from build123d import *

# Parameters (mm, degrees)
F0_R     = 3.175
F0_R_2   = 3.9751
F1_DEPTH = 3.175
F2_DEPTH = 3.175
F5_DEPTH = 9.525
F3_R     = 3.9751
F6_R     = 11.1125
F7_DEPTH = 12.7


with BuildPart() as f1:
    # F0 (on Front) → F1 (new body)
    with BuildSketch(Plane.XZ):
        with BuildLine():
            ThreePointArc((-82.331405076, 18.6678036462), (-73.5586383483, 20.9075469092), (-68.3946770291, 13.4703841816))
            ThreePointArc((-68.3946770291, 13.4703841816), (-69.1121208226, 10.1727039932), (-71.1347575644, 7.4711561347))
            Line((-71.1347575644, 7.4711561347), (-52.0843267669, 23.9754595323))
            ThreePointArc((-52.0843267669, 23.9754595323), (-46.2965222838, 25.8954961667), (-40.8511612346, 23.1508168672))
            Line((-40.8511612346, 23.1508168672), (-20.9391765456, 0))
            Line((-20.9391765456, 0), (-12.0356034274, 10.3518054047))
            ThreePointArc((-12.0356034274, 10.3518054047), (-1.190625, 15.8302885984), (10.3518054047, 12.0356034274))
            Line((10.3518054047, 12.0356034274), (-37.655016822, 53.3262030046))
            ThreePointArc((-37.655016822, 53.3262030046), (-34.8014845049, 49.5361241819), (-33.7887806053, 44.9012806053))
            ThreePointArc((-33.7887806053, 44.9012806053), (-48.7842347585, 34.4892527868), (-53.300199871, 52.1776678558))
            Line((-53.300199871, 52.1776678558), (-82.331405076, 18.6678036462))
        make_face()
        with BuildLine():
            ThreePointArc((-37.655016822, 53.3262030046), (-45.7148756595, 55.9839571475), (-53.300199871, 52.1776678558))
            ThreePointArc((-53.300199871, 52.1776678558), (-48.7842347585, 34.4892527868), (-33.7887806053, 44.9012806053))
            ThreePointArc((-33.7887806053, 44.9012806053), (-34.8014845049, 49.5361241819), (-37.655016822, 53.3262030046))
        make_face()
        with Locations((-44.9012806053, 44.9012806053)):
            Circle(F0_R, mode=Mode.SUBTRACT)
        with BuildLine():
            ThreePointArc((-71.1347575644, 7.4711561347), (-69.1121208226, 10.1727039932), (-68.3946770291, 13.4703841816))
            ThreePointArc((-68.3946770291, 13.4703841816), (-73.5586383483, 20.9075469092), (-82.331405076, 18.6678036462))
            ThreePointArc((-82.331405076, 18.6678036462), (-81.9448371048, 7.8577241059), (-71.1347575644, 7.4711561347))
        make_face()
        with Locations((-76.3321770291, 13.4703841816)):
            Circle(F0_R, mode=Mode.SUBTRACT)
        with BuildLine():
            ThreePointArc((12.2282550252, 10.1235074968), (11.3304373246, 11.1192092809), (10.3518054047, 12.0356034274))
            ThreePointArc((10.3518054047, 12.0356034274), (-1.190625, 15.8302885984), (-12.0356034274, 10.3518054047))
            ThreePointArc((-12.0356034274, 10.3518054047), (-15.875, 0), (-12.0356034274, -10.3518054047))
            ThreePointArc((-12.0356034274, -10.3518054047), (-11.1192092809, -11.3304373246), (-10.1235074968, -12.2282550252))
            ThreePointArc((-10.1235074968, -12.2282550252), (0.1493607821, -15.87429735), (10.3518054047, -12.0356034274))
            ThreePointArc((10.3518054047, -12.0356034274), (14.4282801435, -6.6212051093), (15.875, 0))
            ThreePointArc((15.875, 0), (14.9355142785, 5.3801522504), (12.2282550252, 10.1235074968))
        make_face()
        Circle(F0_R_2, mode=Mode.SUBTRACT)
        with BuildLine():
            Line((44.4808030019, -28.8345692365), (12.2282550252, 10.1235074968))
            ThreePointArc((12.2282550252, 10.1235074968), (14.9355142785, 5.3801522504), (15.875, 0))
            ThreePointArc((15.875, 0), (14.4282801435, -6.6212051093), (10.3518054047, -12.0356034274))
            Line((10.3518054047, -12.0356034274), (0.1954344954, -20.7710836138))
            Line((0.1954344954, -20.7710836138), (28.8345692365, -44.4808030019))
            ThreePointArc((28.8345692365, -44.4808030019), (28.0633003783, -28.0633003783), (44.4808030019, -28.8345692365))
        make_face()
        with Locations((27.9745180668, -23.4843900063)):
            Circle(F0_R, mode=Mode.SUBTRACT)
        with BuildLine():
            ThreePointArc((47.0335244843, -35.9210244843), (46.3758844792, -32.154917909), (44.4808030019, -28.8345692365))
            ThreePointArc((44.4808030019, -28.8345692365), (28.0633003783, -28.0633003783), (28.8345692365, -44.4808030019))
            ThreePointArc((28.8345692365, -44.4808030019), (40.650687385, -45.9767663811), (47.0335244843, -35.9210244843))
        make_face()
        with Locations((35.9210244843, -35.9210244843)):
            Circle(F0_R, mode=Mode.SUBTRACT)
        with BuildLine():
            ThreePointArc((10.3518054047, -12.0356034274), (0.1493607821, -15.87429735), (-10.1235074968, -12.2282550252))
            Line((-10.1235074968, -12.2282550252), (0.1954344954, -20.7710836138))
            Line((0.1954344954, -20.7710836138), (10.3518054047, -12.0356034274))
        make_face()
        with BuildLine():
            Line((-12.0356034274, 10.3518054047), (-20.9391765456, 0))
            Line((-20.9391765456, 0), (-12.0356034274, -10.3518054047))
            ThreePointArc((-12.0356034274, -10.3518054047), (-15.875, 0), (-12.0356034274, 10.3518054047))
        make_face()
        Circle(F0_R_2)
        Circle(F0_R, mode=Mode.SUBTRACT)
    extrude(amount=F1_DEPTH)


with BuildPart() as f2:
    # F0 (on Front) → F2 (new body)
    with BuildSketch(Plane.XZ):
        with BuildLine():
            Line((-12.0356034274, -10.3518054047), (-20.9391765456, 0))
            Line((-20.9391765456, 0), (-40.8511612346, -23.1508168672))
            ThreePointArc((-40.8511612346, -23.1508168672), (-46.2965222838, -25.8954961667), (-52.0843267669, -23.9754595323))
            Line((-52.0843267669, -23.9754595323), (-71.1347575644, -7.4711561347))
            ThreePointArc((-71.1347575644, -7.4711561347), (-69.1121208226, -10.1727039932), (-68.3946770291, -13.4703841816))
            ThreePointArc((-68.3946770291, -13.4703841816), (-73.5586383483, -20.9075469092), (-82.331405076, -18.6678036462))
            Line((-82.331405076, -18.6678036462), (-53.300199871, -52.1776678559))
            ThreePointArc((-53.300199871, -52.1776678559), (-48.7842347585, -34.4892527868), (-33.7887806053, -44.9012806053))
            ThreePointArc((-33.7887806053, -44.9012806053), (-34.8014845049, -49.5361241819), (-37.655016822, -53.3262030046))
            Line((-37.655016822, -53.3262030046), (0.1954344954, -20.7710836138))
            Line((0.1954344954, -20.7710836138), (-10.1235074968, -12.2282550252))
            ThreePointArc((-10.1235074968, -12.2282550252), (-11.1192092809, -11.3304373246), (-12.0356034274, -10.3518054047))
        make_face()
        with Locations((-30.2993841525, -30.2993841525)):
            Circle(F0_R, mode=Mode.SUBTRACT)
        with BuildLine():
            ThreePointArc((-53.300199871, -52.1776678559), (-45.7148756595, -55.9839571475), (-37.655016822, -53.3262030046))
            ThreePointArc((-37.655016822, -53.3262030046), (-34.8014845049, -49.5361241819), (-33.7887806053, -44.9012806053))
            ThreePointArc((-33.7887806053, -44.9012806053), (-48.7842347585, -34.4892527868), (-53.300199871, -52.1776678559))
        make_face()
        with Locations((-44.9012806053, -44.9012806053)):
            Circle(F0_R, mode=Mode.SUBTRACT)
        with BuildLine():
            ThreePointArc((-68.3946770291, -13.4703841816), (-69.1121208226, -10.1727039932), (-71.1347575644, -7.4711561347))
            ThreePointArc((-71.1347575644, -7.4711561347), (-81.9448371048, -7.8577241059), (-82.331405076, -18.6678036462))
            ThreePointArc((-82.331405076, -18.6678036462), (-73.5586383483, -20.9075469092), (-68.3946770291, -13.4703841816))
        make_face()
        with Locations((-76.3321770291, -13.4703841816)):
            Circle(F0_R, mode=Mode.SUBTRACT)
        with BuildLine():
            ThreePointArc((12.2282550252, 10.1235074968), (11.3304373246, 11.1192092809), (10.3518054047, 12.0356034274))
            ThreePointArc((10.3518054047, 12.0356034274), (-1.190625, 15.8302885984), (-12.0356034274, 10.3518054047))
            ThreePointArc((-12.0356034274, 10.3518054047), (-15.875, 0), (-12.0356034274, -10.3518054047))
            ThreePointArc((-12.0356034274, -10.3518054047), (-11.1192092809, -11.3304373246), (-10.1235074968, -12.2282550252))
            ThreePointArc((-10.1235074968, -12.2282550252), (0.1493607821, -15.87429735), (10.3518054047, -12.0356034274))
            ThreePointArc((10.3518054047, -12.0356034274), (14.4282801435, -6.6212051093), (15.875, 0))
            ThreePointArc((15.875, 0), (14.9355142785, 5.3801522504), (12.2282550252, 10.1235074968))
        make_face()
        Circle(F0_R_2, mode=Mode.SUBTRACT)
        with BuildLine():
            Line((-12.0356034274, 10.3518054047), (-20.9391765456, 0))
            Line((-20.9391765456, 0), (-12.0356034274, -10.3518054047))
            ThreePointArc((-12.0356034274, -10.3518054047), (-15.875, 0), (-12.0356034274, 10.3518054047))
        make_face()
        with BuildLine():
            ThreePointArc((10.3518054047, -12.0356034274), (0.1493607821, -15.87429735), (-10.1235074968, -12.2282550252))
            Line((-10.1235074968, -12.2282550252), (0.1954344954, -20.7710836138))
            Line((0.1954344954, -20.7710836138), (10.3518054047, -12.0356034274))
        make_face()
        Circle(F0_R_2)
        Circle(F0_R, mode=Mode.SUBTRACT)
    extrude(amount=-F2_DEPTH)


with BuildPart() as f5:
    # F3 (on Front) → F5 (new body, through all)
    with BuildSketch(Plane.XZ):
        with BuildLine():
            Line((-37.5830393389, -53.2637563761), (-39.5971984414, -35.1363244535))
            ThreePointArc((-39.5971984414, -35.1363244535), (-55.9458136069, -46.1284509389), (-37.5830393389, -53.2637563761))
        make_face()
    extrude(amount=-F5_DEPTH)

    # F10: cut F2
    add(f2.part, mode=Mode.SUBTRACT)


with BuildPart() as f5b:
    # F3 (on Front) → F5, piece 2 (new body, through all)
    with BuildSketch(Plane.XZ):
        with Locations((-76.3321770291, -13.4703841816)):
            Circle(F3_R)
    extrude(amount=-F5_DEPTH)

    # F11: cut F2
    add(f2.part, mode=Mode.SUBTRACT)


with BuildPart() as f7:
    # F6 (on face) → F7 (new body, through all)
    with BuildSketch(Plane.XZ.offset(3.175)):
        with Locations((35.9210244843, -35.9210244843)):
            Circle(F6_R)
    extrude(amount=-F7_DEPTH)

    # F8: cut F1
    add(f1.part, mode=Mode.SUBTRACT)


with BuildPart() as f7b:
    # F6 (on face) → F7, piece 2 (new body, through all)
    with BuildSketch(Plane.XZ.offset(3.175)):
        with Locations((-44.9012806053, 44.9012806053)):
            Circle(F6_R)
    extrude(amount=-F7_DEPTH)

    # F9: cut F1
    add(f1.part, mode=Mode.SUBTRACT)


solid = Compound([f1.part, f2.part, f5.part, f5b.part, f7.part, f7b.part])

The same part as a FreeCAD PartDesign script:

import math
import FreeCAD as App
import Part
import Sketcher
from FreeCAD import Vector
Q = App.Units.Quantity

doc = App.newDocument("Part")
params = doc.addObject("Spreadsheet::Sheet", "Params")
for row, (alias, value) in enumerate([
    ("sketch1_diameter", "0.25 in"),
    ("sketch1_radius", "0.3125 in"),
    ("sketch1_radius2", "0.313 in"),
    ("sketch1_radius3", "0.625 in"),
    ("sketch1_radius4", "0.4375 in"),
    ("pad1_length", "0.125 in"),
    ("sketch2_diameter", "0.25 in"),
    ("sketch2_diameter2", "0.25 in"),
    ("sketch2_diameter3", "0.25 in"),
    ("sketch2_diameter4", "0.25 in"),
    ("sketch2_radius", "0.313 in"),
    ("pad2_length", "0.125 in"),
    ("sketch3_radius", "0.4375 in"),
    ("pad3_length", "0.375 in"),
    ("sketch4_diameter", "0.313 in"),
    ("pad4_length", "0.375 in"),
    ("sketch5_diameter", "0.875 in"),
    ("pad5_length", "0.5 in"),
    ("sketch6_diameter", "0.875 in"),
    ("pad6_length", "0.5 in"),
], start=1):
    params.set(f"A{row}", alias)
    params.set(f"B{row}", "=" + value)
    params.setAlias(f"B{row}", alias)

body = doc.addObject("PartDesign::Body", "Body")

sketch1 = body.newObject("Sketcher::SketchObject", "Sketch")
sketch1.AttachmentSupport = (doc.getObject("XZ_Plane"), [""])
sketch1.MapMode = "FlatFace"
sketch1.addGeometry([
    Part.LineSegment(Vector(-53.3, 52.2, 0), Vector(-82.3, 18.7, 0)),
    Part.ArcOfCircle(Part.Circle(Vector(-76.3, 13.5, 0), Vector(0, 0, 1), 7.9), math.radians(139), math.radians(311)),
    Part.LineSegment(Vector(-71.1, 7.5, 0), Vector(-52.1, 24, 0)),
    Part.ArcOfCircle(Part.Circle(Vector(-46.9, 18, 0), Vector(0, 0, 1), 8), math.radians(41), math.radians(131)),
    Part.LineSegment(Vector(-40.9, 23.2, 0), Vector(-20.9, 0, 0)),
    Part.LineSegment(Vector(-20.9, 0, 0), Vector(-12, -10.4, 0)),
    Part.ArcOfCircle(Part.Circle(Vector(0, 0, 0), Vector(0, 0, 1), 15.9), math.radians(-139.3), math.radians(-129.62)),
    Part.LineSegment(Vector(-10.1, -12.2, 0), Vector(0.2, -20.8, 0)),
    Part.LineSegment(Vector(0.2, -20.8, 0), Vector(28.8, -44.5, 0)),
    Part.ArcOfCircle(Part.Circle(Vector(35.9, -35.9, 0), Vector(0, 0, 1), 11.1), math.radians(-130), math.radians(0)),
    Part.ArcOfCircle(Part.Circle(Vector(35.9, -35.9, 0), Vector(0, 0, 1), 11.1), math.radians(0), math.radians(40)),
    Part.LineSegment(Vector(44.5, -28.8, 0), Vector(12.2, 10.1, 0)),
    Part.ArcOfCircle(Part.Circle(Vector(0, 0, 0), Vector(0, 0, 1), 15.9), math.radians(39.62), math.radians(49.3)),
    Part.LineSegment(Vector(10.4, 12, 0), Vector(-37.7, 53.3, 0)),
    Part.ArcOfCircle(Part.Circle(Vector(-44.9, 44.9, 0), Vector(0, 0, 1), 11.1), math.radians(49), math.radians(139)),
    Part.Circle(Vector(35.9, -35.9, 0), Vector(0, 0, 1), 3.2),
    Part.Circle(Vector(28, -23.5, 0), Vector(0, 0, 1), 3.2),
    Part.Circle(Vector(0, 0, 0), Vector(0, 0, 1), 3.2),
    Part.Circle(Vector(-76.3, 13.5, 0), Vector(0, 0, 1), 3.2),
    Part.Circle(Vector(-44.9, 44.9, 0), Vector(0, 0, 1), 3.2),
], False)
sketch1.addConstraint([
    Sketcher.Constraint("Tangent", 0, 2, 1, 1),
    Sketcher.Constraint("Tangent", 1, 2, 2, 1),
    Sketcher.Constraint("Tangent", 2, 2, 3, 2),
    Sketcher.Constraint("Tangent", 3, 1, 4, 1),
    Sketcher.Constraint("Coincident", 4, 2, 5, 1),
    Sketcher.Constraint("Tangent", 5, 2, 6, 1),
    Sketcher.Constraint("Tangent", 6, 2, 7, 1),
    Sketcher.Constraint("Coincident", 7, 2, 8, 1),
    Sketcher.Constraint("Tangent", 8, 2, 9, 1),
    Sketcher.Constraint("Tangent", 9, 2, 10, 1),
    Sketcher.Constraint("Tangent", 10, 2, 11, 1),
    Sketcher.Constraint("Tangent", 11, 2, 12, 1),
    Sketcher.Constraint("Tangent", 12, 2, 13, 1),
    Sketcher.Constraint("Tangent", 13, 2, 14, 1),
    Sketcher.Constraint("Tangent", 14, 2, 0, 1),
    Sketcher.Constraint("Coincident", 6, 3, -1, 1),
    Sketcher.Constraint("Coincident", 12, 3, -1, 1),
    Sketcher.Constraint("Coincident", 17, 3, -1, 1),
    Sketcher.Constraint("Coincident", 15, 3, 9, 3),
    Sketcher.Constraint("Coincident", 18, 3, 1, 3),
    Sketcher.Constraint("Coincident", 19, 3, 14, 3),
    Sketcher.Constraint("Equal", 9, 10),
    Sketcher.Constraint("Equal", 6, 12),
    Sketcher.Constraint("Equal", 10, 14),
    Sketcher.Constraint("Equal", 15, 16),
    Sketcher.Constraint("Equal", 16, 17),
    Sketcher.Constraint("Equal", 17, 18),
    Sketcher.Constraint("Equal", 18, 19),
    Sketcher.Constraint("PointOnObject", 4, 2, -1),
    Sketcher.Constraint("Parallel", 4, 5),
    Sketcher.Constraint("Parallel", 7, 8),
    Sketcher.Constraint("Horizontal", 15, 3, 9, 2),
    Sketcher.Constraint("Diameter", 15, Q("0.25 in")),
    Sketcher.Constraint("Radius", 1, Q("0.3125 in")),
    Sketcher.Constraint("Radius", 3, Q("0.313 in")),
    Sketcher.Constraint("Radius", 6, Q("0.625 in")),
    Sketcher.Constraint("Radius", 9, Q("0.4375 in")),
    Sketcher.Constraint("DistanceX", 14, 2, -1, 1, 53.3002),
    Sketcher.Constraint("DistanceX", 1, 3, 9, 3, 112.253202),
    Sketcher.Constraint("Distance", 8, 37.179979),
    Sketcher.Constraint("DistanceX", 3, 3, -1, 1, 46.878591),
    Sketcher.Constraint("DistanceX", 14, 3, -1, 1, 44.901281),
    Sketcher.Constraint("DistanceY", -1, 1, 14, 3, 44.901281),
    Sketcher.Constraint("DistanceX", -1, 1, 16, 3, 27.974518),
    Sketcher.Constraint("DistanceY", 16, 3, -1, 1, 23.48439),
    Sketcher.Constraint("DistanceY", -1, 1, 2, 2, 23.97546),
    Sketcher.Constraint("DistanceX", -1, 1, 8, 2, 28.834569),
    Sketcher.Constraint("DistanceY", 10, 2, -1, 1, 28.834569),
])
sketch1.setExpression("Constraints[32]", "Params.sketch1_diameter")
sketch1.setExpression("Constraints[33]", "Params.sketch1_radius")
sketch1.setExpression("Constraints[34]", "Params.sketch1_radius2")
sketch1.setExpression("Constraints[35]", "Params.sketch1_radius3")
sketch1.setExpression("Constraints[36]", "Params.sketch1_radius4")
pad1 = body.newObject("PartDesign::Pad", "Pad")
pad1.Profile = sketch1
pad1.setExpression("Length", "Params.pad1_length")
body2 = doc.addObject("PartDesign::Body", "Body001")

sketch2 = body2.newObject("Sketcher::SketchObject", "Sketch001")
sketch2.AttachmentSupport = (doc.getObject("XZ_Plane001"), [""])
sketch2.MapMode = "FlatFace"
sketch2.addGeometry([
    Part.LineSegment(Vector(-20.939177, 0, 0), Vector(-40.851161, -23.150817, 0)),
    Part.ArcOfCircle(Part.Circle(Vector(-46.878591, -17.966633, 0), Vector(0, 0, 1), 7.9502), math.radians(-130.903956), math.radians(-40.698778)),
    Part.LineSegment(Vector(-52.084327, -23.97546, 0), Vector(-71.134758, -7.471156, 0)),
    Part.ArcOfCircle(Part.Circle(Vector(-76.332177, -13.470384, 0), Vector(0, 0, 1), 7.9375), math.radians(49.096044), math.radians(220.903956)),
    Part.LineSegment(Vector(-82.331405, -18.667804, 0), Vector(-53.3002, -52.177668, 0)),
    Part.ArcOfCircle(Part.Circle(Vector(-44.901281, -44.901281, 0), Vector(0, 0, 1), 11.1125), math.radians(-139.096044), math.radians(-49.301222)),
    Part.LineSegment(Vector(-37.655017, -53.326203, 0), Vector(10.351805, -12.035603, 0)),
    Part.ArcOfCircle(Part.Circle(Vector(0, 0, 0), Vector(0, 0, 1), 15.875), math.radians(-49.301222), math.radians(0)),
    Part.ArcOfCircle(Part.Circle(Vector(0, 0, 0), Vector(0, 0, 1), 15.875), math.radians(0), math.radians(39.620621)),
    Part.ArcOfCircle(Part.Circle(Vector(0, 0, 0), Vector(0, 0, 1), 15.875), math.radians(39.620621), math.radians(49.301222)),
    Part.ArcOfCircle(Part.Circle(Vector(0, 0, 0), Vector(0, 0, 1), 15.875), math.radians(49.301222), math.radians(139.301222)),
    Part.LineSegment(Vector(-12.035603, 10.351805, 0), Vector(-20.939177, 0, 0)),
    Part.Circle(Vector(-44.901281, -44.901281, 0), Vector(0, 0, 1), 3.175),
    Part.Circle(Vector(-30.299384, -30.299384, 0), Vector(0, 0, 1), 3.175),
    Part.Circle(Vector(-76.332177, -13.470384, 0), Vector(0, 0, 1), 3.175),
    Part.Circle(Vector(0, 0, 0), Vector(0, 0, 1), 3.175),
], False)
sketch2.addConstraint([
    Sketcher.Constraint("Coincident", 0, 2, 1, 2),
    Sketcher.Constraint("Coincident", 1, 1, 2, 1),
    Sketcher.Constraint("Coincident", 2, 2, 3, 1),
    Sketcher.Constraint("Coincident", 3, 2, 4, 1),
    Sketcher.Constraint("Coincident", 4, 2, 5, 1),
    Sketcher.Constraint("Coincident", 5, 2, 6, 1),
    Sketcher.Constraint("Coincident", 6, 2, 7, 1),
    Sketcher.Constraint("Coincident", 7, 2, 8, 1),
    Sketcher.Constraint("Coincident", 8, 2, 9, 1),
    Sketcher.Constraint("Coincident", 9, 2, 10, 1),
    Sketcher.Constraint("Coincident", 10, 2, 11, 1),
    Sketcher.Constraint("Coincident", 11, 2, 0, 1),
    Sketcher.Constraint("Coincident", 7, 3, -1, 1),
    Sketcher.Constraint("Coincident", 8, 3, -1, 1),
    Sketcher.Constraint("Coincident", 9, 3, -1, 1),
    Sketcher.Constraint("Coincident", 10, 3, -1, 1),
    Sketcher.Constraint("Coincident", 15, 3, -1, 1),
    Sketcher.Constraint("Coincident", 12, 3, 5, 3),
    Sketcher.Constraint("Coincident", 14, 3, 3, 3),
    Sketcher.Constraint("PointOnObject", 7, 2, -1),
    Sketcher.Constraint("PointOnObject", 11, 2, -1),
    Sketcher.Constraint("Diameter", 12, Q("0.25 in")),
    Sketcher.Constraint("Diameter", 13, Q("0.25 in")),
    Sketcher.Constraint("Diameter", 14, Q("0.25 in")),
    Sketcher.Constraint("Diameter", 15, Q("0.25 in")),
    Sketcher.Constraint("Radius", 1, Q("0.313 in")),
    Sketcher.Constraint("Radius", 3, Q("0.3125 in")),
    Sketcher.Constraint("Radius", 5, Q("0.4375 in")),
    Sketcher.Constraint("Radius", 7, Q("0.625 in")),
    Sketcher.Constraint("DistanceX", 4, 2, -1, 1, 53.3002),
    Sketcher.Constraint("DistanceY", 13, 3, 14, 3, 16.829),
    Sketcher.Constraint("DistanceX", 1, 3, -1, 1, 46.878591),
    Sketcher.Constraint("DistanceX", 5, 3, -1, 1, 44.901281),
    Sketcher.Constraint("DistanceY", 5, 3, -1, 1, 44.901281),
    Sketcher.Constraint("DistanceX", 0, 2, -1, 1, 40.851161),
    Sketcher.Constraint("DistanceY", 1, 1, -1, 1, 23.97546),
    Sketcher.Constraint("DistanceY", 1, 3, 3, 3, 4.496249),
    Sketcher.Constraint("DistanceX", 3, 3, 2, 2, 5.197419),
    Sketcher.Constraint("DistanceX", 2, 2, 1, 1, 19.050431),
    Sketcher.Constraint("DistanceX", 3, 2, 3, 3, 5.999228),
    Sketcher.Constraint("DistanceY", 4, 2, 0, 2, 29.026851),
    Sketcher.Constraint("DistanceY", 5, 2, 13, 3, 23.026819),
    Sketcher.Constraint("DistanceX", 9, 2, 8, 2, 1.87645),
    Sketcher.Constraint("Distance", 0, 30.536003),
    Sketcher.Constraint("Distance", 6, 63.321154),
    Sketcher.Constraint("Distance", 11, 13.654065),
    Sketcher.Constraint("DistanceX", 13, 3, -1, 1, 30.299384),
    Sketcher.Constraint("DistanceX", -1, 1, 8, 2, 12.228255),
])
sketch2.setExpression("Constraints[21]", "Params.sketch2_diameter")
sketch2.setExpression("Constraints[22]", "Params.sketch2_diameter2")
sketch2.setExpression("Constraints[23]", "Params.sketch2_diameter3")
sketch2.setExpression("Constraints[24]", "Params.sketch2_diameter4")
sketch2.setExpression("Constraints[25]", "Params.sketch2_radius")
pad2 = body2.newObject("PartDesign::Pad", "Pad001")
pad2.Profile = sketch2
pad2.setExpression("Length", "Params.pad2_length")
pad2.Reversed = True
body3 = doc.addObject("PartDesign::Body", "Body002")

sketch3 = body3.newObject("Sketcher::SketchObject", "Sketch002")
sketch3.AttachmentSupport = (doc.getObject("XZ_Plane002"), [""])
sketch3.MapMode = "FlatFace"
sketch3.addGeometry([
    Part.LineSegment(Vector(-38, -53, 0), Vector(-40, -35, 0)),
    Part.ArcOfCircle(Part.Circle(Vector(-45, -45, 0), Vector(0, 0, 1), 11), math.radians(61), math.radians(311)),
], False)
sketch3.addConstraint([
    Sketcher.Constraint("Coincident", 0, 1, 1, 2),
    Sketcher.Constraint("Coincident", 1, 1, 0, 2),
    Sketcher.Constraint("Radius", 1, Q("0.4375 in")),
    Sketcher.Constraint("DistanceX", 1, 1, -1, 1, 39.597198),
    Sketcher.Constraint("DistanceX", 1, 3, -1, 1, 44.901281),
    Sketcher.Constraint("DistanceY", 1, 3, -1, 1, 44.901281),
    Sketcher.Constraint("DistanceX", 0, 1, -1, 1, 37.583039),
])
sketch3.setExpression("Constraints[2]", "Params.sketch3_radius")
pad3 = body3.newObject("PartDesign::Pad", "Pad002")
pad3.Profile = sketch3
pad3.setExpression("Length", "Params.pad3_length")
pad3.Reversed = True
doc.recompute()

body4 = doc.addObject("PartDesign::Body", "Body003")
body4.BaseFeature = body2
boolean = body3.newObject("PartDesign::Boolean", "Boolean")
boolean.Type = "Cut"
boolean.addObjects([body4])
doc.recompute()
body5 = doc.addObject("PartDesign::Body", "Body004")

sketch4 = body5.newObject("Sketcher::SketchObject", "Sketch003")
sketch4.AttachmentSupport = (doc.getObject("XZ_Plane004"), [""])
sketch4.MapMode = "FlatFace"
sketch4.addGeometry(Part.Circle(Vector(-76.3, -13.5, 0), Vector(0, 0, 1), 4), False)
sketch4.addConstraint([
    Sketcher.Constraint("Diameter", 0, Q("0.313 in")),
    Sketcher.Constraint("DistanceX", 0, 3, -1, 1, 76.332177),
    Sketcher.Constraint("DistanceY", 0, 3, -1, 1, 13.470384),
])
sketch4.setExpression("Constraints[0]", "Params.sketch4_diameter")
pad4 = body5.newObject("PartDesign::Pad", "Pad003")
pad4.Profile = sketch4
pad4.setExpression("Length", "Params.pad4_length")
pad4.Reversed = True
doc.recompute()

body6 = doc.addObject("PartDesign::Body", "Body005")
body6.BaseFeature = body2
boolean2 = body5.newObject("PartDesign::Boolean", "Boolean001")
boolean2.Type = "Cut"
boolean2.addObjects([body6])
doc.recompute()
body7 = doc.addObject("PartDesign::Body", "Body006")

sketch5 = body7.newObject("Sketcher::SketchObject", "Sketch004")
sketch5.AttachmentSupport = (doc.getObject("XZ_Plane006"), [""])
sketch5.MapMode = "FlatFace"
sketch5.AttachmentOffset = App.Placement(Vector(0, 0, 0.125 * 25.4), App.Rotation())
sketch5.addGeometry(Part.Circle(Vector(36, -36, 0), Vector(0, 0, 1), 11), False)
sketch5.addConstraint([
    Sketcher.Constraint("Diameter", 0, Q("0.875 in")),
    Sketcher.Constraint("DistanceX", -1, 1, 0, 3, 35.921024),
    Sketcher.Constraint("DistanceY", 0, 3, -1, 1, 35.921024),
])
sketch5.setExpression("Constraints[0]", "Params.sketch5_diameter")
pad5 = body7.newObject("PartDesign::Pad", "Pad004")
pad5.Profile = sketch5
pad5.setExpression("Length", "Params.pad5_length")
pad5.Reversed = True
doc.recompute()

body8 = doc.addObject("PartDesign::Body", "Body007")
body8.BaseFeature = body
boolean3 = body7.newObject("PartDesign::Boolean", "Boolean002")
boolean3.Type = "Cut"
boolean3.addObjects([body8])
doc.recompute()
body9 = doc.addObject("PartDesign::Body", "Body008")

sketch6 = body9.newObject("Sketcher::SketchObject", "Sketch005")
sketch6.AttachmentSupport = (doc.getObject("XZ_Plane008"), [""])
sketch6.MapMode = "FlatFace"
sketch6.AttachmentOffset = App.Placement(Vector(0, 0, 0.125 * 25.4), App.Rotation())
sketch6.addGeometry(Part.Circle(Vector(-45, 45, 0), Vector(0, 0, 1), 11), False)
sketch6.addConstraint([
    Sketcher.Constraint("Diameter", 0, Q("0.875 in")),
    Sketcher.Constraint("DistanceX", 0, 3, -1, 1, 44.901281),
    Sketcher.Constraint("DistanceY", -1, 1, 0, 3, 44.901281),
])
sketch6.setExpression("Constraints[0]", "Params.sketch6_diameter")
pad6 = body9.newObject("PartDesign::Pad", "Pad005")
pad6.Profile = sketch6
pad6.setExpression("Length", "Params.pad6_length")
pad6.Reversed = True
doc.recompute()

body10 = doc.addObject("PartDesign::Body", "Body009")
body10.BaseFeature = body
boolean4 = body9.newObject("PartDesign::Boolean", "Boolean003")
boolean4.Type = "Cut"
boolean4.addObjects([body10])
doc.recompute()

doc.recompute()
